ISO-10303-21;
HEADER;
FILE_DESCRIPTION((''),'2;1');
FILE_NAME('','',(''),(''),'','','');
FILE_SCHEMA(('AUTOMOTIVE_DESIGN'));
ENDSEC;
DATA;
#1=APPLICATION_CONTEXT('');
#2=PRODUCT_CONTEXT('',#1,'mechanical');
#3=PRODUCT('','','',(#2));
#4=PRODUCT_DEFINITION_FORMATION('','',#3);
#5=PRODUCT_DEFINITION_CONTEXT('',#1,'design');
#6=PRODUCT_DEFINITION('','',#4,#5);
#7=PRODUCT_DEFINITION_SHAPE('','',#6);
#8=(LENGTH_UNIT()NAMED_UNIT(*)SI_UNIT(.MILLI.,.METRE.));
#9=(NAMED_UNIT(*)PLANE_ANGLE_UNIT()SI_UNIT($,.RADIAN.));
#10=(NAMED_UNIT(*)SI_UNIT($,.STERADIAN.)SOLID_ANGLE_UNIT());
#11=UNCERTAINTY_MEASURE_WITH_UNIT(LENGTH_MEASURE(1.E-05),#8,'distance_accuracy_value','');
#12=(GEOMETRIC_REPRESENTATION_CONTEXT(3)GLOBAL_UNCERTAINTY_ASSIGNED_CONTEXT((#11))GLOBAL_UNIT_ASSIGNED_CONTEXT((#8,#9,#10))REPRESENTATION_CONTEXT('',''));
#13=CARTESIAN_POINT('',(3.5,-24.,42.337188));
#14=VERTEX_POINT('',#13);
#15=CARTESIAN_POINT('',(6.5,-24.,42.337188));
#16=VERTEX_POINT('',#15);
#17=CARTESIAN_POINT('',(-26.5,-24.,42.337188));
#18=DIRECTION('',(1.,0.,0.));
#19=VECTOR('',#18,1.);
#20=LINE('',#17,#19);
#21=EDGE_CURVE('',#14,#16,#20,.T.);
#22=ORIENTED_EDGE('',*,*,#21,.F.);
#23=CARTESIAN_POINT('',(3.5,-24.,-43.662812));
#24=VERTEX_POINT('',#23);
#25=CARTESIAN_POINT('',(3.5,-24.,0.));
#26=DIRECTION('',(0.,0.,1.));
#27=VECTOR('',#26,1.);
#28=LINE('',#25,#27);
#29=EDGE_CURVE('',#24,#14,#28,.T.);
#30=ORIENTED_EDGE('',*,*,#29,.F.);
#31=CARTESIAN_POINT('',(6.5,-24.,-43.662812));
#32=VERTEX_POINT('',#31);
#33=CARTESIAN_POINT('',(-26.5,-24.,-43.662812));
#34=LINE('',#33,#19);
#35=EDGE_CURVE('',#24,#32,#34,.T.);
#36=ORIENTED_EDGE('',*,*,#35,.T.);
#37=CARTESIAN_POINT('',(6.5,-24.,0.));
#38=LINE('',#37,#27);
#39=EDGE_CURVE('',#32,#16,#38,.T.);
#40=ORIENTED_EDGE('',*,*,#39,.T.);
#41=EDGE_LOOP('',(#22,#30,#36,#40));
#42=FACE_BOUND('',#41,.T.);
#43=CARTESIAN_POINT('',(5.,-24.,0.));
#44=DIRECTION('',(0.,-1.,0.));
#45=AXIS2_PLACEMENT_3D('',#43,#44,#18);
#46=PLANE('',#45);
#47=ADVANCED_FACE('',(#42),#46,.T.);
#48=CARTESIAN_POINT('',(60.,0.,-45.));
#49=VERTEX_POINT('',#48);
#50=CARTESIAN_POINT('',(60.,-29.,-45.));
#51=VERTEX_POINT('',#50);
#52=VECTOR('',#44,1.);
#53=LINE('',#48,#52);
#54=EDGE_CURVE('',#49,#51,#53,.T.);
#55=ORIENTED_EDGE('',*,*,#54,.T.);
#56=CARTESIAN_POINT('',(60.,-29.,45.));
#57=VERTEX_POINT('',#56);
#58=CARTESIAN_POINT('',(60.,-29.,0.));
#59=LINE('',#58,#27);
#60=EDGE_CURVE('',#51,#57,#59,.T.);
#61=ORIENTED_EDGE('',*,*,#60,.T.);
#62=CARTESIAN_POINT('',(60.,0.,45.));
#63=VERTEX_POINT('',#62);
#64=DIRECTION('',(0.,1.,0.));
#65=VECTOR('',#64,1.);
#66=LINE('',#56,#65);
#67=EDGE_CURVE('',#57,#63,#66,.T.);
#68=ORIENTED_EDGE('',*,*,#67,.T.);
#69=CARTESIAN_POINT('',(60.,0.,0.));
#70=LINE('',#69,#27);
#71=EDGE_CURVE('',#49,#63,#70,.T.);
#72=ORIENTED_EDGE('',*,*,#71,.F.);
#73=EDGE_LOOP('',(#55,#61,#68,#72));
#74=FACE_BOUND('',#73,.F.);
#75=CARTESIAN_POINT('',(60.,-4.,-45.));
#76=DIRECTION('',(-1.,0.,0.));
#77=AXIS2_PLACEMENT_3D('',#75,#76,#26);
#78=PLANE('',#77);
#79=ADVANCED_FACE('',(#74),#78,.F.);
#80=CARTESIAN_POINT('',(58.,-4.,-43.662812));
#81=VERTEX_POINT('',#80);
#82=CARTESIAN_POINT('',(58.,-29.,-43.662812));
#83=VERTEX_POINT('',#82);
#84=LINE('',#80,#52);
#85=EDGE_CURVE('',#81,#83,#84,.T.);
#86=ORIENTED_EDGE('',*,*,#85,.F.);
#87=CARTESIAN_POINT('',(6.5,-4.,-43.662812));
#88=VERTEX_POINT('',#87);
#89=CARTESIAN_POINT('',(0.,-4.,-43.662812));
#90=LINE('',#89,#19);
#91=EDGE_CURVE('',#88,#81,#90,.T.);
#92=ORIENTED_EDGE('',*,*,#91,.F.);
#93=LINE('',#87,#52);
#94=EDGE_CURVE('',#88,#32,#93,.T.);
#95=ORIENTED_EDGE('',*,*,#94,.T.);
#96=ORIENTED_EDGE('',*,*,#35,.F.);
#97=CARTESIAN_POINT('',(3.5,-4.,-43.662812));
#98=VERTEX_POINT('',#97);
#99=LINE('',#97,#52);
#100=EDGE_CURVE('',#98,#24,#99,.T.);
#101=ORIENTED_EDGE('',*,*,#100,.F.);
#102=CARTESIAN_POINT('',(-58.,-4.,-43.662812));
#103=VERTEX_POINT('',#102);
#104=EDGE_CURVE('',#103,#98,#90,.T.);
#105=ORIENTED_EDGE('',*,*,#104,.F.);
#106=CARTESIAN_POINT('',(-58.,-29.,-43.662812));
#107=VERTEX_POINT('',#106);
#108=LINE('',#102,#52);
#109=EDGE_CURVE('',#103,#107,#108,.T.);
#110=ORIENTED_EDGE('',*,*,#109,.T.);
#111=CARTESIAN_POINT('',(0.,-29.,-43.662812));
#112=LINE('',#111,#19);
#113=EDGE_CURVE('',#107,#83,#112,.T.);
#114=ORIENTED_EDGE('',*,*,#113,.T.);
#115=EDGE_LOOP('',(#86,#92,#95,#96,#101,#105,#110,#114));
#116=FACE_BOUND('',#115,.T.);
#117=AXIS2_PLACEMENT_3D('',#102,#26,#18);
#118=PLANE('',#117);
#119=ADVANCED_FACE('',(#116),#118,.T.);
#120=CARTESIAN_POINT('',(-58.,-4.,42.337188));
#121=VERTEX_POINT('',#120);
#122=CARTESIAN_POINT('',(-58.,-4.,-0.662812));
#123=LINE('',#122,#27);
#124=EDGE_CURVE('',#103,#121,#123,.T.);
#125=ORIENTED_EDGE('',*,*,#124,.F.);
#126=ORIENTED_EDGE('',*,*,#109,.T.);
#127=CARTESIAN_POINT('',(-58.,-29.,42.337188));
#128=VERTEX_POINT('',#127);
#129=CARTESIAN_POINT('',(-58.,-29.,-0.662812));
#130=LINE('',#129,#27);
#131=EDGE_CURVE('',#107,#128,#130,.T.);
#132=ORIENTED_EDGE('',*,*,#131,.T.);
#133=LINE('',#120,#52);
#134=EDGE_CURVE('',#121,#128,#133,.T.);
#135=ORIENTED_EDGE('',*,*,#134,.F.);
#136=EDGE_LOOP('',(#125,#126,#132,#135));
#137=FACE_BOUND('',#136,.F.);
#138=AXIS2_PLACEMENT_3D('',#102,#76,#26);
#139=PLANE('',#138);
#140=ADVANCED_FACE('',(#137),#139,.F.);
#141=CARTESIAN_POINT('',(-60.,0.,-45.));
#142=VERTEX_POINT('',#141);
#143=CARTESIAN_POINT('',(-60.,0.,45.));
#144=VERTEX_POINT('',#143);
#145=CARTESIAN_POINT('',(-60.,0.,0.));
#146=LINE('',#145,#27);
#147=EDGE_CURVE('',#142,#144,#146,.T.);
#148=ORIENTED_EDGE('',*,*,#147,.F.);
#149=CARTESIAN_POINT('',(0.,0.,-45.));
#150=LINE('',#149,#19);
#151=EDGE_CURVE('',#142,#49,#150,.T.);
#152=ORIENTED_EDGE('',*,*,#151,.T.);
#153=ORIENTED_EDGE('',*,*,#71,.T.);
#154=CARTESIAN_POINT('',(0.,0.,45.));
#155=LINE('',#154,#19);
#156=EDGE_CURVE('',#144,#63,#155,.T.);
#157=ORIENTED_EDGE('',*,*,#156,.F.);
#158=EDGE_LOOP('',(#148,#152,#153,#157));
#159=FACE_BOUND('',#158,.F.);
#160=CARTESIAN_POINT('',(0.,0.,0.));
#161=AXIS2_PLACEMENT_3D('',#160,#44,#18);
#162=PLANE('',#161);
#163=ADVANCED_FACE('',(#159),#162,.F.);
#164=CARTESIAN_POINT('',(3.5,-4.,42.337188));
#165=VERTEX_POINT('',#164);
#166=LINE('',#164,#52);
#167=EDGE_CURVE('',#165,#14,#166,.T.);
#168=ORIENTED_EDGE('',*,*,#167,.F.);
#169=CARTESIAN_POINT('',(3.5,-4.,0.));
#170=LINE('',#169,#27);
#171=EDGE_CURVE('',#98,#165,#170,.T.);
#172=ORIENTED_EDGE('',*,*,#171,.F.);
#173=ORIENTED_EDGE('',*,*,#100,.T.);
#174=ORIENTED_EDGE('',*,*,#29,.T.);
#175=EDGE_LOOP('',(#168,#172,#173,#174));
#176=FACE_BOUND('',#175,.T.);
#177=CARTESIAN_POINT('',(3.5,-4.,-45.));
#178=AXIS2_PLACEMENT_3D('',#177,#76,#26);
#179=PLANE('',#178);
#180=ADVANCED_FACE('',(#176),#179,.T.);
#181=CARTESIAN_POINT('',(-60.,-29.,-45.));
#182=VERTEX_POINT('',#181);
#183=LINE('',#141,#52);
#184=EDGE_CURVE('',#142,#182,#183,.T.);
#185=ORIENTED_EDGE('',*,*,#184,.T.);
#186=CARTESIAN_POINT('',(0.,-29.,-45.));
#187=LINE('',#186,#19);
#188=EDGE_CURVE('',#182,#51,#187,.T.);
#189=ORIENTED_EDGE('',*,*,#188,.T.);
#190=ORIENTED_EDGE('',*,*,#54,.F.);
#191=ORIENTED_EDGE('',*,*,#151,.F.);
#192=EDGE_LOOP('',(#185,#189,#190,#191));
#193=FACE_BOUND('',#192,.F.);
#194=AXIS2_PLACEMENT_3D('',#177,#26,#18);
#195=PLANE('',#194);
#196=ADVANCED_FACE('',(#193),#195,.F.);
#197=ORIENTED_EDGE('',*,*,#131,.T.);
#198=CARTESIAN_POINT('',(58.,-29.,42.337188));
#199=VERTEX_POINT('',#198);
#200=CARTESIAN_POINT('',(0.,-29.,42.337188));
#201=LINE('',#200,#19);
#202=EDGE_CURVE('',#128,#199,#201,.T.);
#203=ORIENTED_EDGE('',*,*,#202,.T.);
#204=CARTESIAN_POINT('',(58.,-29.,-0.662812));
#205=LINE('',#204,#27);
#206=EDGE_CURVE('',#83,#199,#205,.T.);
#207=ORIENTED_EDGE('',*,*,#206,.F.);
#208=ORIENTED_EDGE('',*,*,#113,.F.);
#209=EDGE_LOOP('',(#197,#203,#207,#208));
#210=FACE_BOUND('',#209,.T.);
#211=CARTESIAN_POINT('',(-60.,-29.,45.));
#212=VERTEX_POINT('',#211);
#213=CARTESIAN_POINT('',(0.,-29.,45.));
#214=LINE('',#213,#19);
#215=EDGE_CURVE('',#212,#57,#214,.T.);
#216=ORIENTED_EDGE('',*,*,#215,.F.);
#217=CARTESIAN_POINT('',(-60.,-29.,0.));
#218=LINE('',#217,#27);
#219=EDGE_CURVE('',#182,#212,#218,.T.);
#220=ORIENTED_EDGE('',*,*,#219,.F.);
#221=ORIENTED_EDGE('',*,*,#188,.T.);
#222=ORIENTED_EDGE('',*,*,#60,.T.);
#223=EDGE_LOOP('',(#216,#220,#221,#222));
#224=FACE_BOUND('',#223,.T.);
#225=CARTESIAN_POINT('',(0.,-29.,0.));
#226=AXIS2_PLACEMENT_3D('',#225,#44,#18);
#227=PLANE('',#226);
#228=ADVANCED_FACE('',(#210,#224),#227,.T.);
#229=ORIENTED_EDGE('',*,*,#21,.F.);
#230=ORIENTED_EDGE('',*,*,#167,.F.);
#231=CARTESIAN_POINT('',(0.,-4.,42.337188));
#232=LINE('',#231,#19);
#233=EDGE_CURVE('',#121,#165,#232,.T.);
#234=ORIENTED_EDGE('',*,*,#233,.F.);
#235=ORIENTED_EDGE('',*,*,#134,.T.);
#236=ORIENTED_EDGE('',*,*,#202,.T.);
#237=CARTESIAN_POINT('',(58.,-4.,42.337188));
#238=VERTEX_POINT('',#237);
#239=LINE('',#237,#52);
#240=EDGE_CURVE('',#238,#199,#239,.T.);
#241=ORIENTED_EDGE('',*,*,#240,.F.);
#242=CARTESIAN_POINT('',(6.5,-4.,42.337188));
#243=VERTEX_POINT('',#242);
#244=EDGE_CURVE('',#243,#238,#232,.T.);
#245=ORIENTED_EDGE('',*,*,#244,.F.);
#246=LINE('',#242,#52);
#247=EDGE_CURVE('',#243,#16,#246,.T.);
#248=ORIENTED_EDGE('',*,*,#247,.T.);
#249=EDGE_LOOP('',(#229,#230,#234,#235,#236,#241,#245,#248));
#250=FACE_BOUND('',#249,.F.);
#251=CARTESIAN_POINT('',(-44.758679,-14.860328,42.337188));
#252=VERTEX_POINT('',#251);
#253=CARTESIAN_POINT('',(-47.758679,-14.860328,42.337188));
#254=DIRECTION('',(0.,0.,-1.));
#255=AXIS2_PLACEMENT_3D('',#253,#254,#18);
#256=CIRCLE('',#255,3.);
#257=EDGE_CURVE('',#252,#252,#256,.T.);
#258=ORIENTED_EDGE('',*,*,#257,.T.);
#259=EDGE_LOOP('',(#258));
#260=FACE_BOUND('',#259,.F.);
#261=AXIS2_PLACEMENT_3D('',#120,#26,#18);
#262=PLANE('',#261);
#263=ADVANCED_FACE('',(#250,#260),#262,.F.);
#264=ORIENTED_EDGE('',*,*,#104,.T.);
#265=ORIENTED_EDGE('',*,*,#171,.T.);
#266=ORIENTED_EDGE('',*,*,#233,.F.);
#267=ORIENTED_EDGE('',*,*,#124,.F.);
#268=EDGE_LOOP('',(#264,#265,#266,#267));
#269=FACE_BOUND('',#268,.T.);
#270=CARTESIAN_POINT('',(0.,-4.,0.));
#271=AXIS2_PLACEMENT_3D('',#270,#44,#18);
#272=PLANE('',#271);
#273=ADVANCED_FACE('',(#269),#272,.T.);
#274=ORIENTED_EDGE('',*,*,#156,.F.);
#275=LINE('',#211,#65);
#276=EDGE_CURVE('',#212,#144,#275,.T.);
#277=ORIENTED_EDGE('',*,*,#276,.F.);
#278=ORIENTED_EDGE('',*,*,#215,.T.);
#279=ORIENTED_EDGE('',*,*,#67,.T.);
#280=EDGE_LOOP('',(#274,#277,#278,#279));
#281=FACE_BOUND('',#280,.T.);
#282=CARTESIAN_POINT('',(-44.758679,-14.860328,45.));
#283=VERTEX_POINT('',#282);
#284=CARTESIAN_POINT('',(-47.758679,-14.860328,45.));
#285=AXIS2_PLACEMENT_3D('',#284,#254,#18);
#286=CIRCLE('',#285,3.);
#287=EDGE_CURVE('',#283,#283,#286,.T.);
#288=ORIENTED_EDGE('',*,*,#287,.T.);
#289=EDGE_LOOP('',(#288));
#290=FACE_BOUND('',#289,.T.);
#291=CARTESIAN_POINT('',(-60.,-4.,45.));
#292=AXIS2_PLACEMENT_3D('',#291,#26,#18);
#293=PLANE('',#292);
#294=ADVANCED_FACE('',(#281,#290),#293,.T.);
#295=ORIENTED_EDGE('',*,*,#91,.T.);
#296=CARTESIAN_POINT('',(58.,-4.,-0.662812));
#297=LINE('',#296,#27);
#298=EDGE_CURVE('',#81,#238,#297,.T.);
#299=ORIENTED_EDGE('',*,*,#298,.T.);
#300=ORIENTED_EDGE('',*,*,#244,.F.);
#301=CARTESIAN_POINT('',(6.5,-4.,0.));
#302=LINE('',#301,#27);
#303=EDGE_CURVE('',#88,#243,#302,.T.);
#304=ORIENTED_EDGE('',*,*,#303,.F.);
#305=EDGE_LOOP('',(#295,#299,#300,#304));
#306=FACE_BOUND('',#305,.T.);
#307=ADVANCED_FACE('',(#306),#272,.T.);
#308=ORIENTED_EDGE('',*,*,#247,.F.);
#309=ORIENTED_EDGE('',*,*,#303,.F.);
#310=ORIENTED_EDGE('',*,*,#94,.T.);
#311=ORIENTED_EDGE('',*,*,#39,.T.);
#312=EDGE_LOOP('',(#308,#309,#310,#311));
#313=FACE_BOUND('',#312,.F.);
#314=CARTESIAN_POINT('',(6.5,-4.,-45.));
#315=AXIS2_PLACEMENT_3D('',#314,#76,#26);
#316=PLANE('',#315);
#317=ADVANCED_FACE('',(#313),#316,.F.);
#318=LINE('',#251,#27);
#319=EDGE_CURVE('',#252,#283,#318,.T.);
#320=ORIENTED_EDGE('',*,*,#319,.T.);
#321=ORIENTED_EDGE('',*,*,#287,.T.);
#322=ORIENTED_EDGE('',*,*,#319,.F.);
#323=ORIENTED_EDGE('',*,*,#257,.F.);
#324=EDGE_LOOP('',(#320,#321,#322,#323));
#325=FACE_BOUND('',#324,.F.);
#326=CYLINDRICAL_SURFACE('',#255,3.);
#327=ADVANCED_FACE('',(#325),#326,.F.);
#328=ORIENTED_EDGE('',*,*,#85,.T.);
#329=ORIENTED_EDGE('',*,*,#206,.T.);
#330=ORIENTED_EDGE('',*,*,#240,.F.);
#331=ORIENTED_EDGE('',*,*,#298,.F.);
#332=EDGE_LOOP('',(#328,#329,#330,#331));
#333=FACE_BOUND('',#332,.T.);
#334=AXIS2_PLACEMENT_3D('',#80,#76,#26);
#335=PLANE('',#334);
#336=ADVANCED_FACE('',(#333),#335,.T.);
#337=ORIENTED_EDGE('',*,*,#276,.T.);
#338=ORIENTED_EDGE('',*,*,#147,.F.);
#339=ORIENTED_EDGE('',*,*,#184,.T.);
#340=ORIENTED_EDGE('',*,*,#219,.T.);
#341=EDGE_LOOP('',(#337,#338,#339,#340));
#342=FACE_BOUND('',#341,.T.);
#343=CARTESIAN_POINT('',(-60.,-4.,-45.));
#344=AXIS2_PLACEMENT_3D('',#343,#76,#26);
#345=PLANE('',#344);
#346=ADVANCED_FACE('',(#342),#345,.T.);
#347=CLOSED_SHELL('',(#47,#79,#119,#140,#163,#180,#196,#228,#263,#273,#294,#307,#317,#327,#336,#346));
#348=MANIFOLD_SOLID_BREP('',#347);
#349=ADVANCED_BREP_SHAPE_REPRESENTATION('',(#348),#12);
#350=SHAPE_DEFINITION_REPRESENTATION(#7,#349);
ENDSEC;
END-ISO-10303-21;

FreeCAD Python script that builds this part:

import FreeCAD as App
import Part
import Sketcher

V = App.Vector
Q = App.Units.Quantity

doc = App.newDocument("Part")
body = doc.addObject("PartDesign::Body", "Body")

# Sketch on XZ plane
sketch1 = body.newObject("Sketcher::SketchObject", "Sketch")
sketch1.AttachmentSupport = (doc.getObject("XZ_Plane"), [""])
sketch1.MapMode = "FlatFace"
sketch1.addGeometry([
    Part.LineSegment(V(-60, 45, 0), V(-60, -45, 0)),
    Part.LineSegment(V(-60, -45, 0), V(60, -45, 0)),
    Part.LineSegment(V(60, -45, 0), V(60, 45, 0)),
    Part.LineSegment(V(60, 45, 0), V(-60, 45, 0)),
], False)
sketch1.addConstraint([
    Sketcher.Constraint("Coincident", 0, 2, 1, 1),
    Sketcher.Constraint("Coincident", 1, 2, 2, 1),
    Sketcher.Constraint("Coincident", 2, 2, 3, 1),
    Sketcher.Constraint("Coincident", 3, 2, 0, 1),
    Sketcher.Constraint("Vertical", 0),
    Sketcher.Constraint("Horizontal", 1),
    Sketcher.Constraint("Vertical", 2),
    Sketcher.Constraint("Horizontal", 3),
    Sketcher.Constraint("Symmetric", 0, 2, 2, 2, -1, 1),
    Sketcher.Constraint("DistanceX", 1, 1, 1, 2, Q("120 mm")),
    Sketcher.Constraint("DistanceY", 0, 2, 0, 1, Q("90 mm")),
])
pad1 = body.newObject("PartDesign::Pad", "Pad")
pad1.Profile = sketch1
pad1.Length = 4

# Sketch on XZ plane
sketch2 = body.newObject("Sketcher::SketchObject", "Sketch001")
sketch2.AttachmentSupport = (doc.getObject("XZ_Plane"), [""])
sketch2.MapMode = "FlatFace"
sketch2.AttachmentOffset = App.Placement(V(0, 0, 4), App.Rotation())
sketch2.addGeometry([
    Part.LineSegment(V(-60, 45, 0), V(-60, -45, 0)),  # 0
    Part.LineSegment(V(-60, -45, 0), V(60, -45, 0)),  # 1
    Part.LineSegment(V(60, -45, 0), V(60, 45, 0)),  # 2
    Part.LineSegment(V(60, 45, 0), V(-60, 45, 0)),  # 3
    Part.LineSegment(V(58, -44, 0), V(-58, -44, 0)),  # 4
    Part.LineSegment(V(-58, -44, 0), V(-58, 42, 0)),  # 5
    Part.LineSegment(V(-58, 42, 0), V(58, 42, 0)),  # 6
    Part.LineSegment(V(58, 42, 0), V(58, -44, 0)),  # 7
], False)
sketch2.addConstraint([
    Sketcher.Constraint("Coincident", 0, 2, 1, 1),
    Sketcher.Constraint("Coincident", 1, 2, 2, 1),
    Sketcher.Constraint("Coincident", 2, 2, 3, 1),
    Sketcher.Constraint("Coincident", 3, 2, 0, 1),
    Sketcher.Constraint("Coincident", 4, 2, 5, 1),
    Sketcher.Constraint("Coincident", 5, 2, 6, 1),
    Sketcher.Constraint("Coincident", 6, 2, 7, 1),
    Sketcher.Constraint("Coincident", 7, 2, 4, 1),
    Sketcher.Constraint("Vertical", 0),
    Sketcher.Constraint("Horizontal", 1),
    Sketcher.Constraint("Vertical", 2),
    Sketcher.Constraint("Horizontal", 3),
    Sketcher.Constraint("Horizontal", 4),
    Sketcher.Constraint("Vertical", 5),
    Sketcher.Constraint("Horizontal", 6),
    Sketcher.Constraint("Vertical", 7),
    Sketcher.Constraint("Symmetric", 0, 2, 2, 2, -1, 1),
    Sketcher.Constraint("DistanceX", 1, 1, 1, 2, Q("120 mm")),
    Sketcher.Constraint("DistanceX", 4, 2, 4, 1, Q("116 mm")),
    Sketcher.Constraint("DistanceY", 0, 2, 0, 1, Q("90 mm")),
    Sketcher.Constraint("DistanceY", 5, 1, 5, 2, Q("86 mm")),
    Sketcher.Constraint("DistanceX", 4, 2, -1, 1, Q("58 mm")),
    Sketcher.Constraint("DistanceY", 4, 2, -1, 1, Q("43.662812 mm")),
])
pad2 = body.newObject("PartDesign::Pad", "Pad001")
pad2.Profile = sketch2
pad2.Length = 25

# Sketch on XZ plane
sketch3 = body.newObject("Sketcher::SketchObject", "Sketch002")
sketch3.AttachmentSupport = (doc.getObject("XZ_Plane"), [""])
sketch3.MapMode = "FlatFace"
sketch3.AttachmentOffset = App.Placement(V(0, 0, 4), App.Rotation())
sketch3.addGeometry([
    Part.LineSegment(V(3.5, 45, 0), V(3.5, -45, 0)),
    Part.LineSegment(V(3.5, -45, 0), V(6.5, -45, 0)),
    Part.LineSegment(V(6.5, -45, 0), V(6.5, 45, 0)),
    Part.LineSegment(V(6.5, 45, 0), V(3.5, 45, 0)),
], False)
sketch3.addConstraint([
    Sketcher.Constraint("Coincident", 0, 2, 1, 1),
    Sketcher.Constraint("Coincident", 1, 2, 2, 1),
    Sketcher.Constraint("Coincident", 2, 2, 3, 1),
    Sketcher.Constraint("Coincident", 3, 2, 0, 1),
    Sketcher.Constraint("Vertical", 0),
    Sketcher.Constraint("Horizontal", 1),
    Sketcher.Constraint("Vertical", 2),
    Sketcher.Constraint("Horizontal", 3),
    Sketcher.Constraint("DistanceX", 1, 1, 1, 2, Q("3 mm")),
    Sketcher.Constraint("DistanceY", 0, 2, 0, 1, Q("90 mm")),
    Sketcher.Constraint("DistanceY", 0, 2, -1, 1, Q("45 mm")),
    Sketcher.Constraint("DistanceX", -1, 1, 0, 2, Q("3.5 mm")),
])
pad3 = body.newObject("PartDesign::Pad", "Pad002")
pad3.Profile = sketch3
pad3.Length = 20

# Sketch on XY plane
sketch4 = body.newObject("Sketcher::SketchObject", "Sketch003")
sketch4.AttachmentSupport = (doc.getObject("XY_Plane"), [""])
sketch4.MapMode = "FlatFace"
sketch4.AttachmentOffset = App.Placement(V(0, 0, 42.337188), App.Rotation())
sketch4.addGeometry(Part.Circle(V(-47.8, -14.9, 0), V(0, 0, 1), 3), False)
sketch4.addConstraint([
    Sketcher.Constraint("Diameter", 0, Q("6 mm")),
    Sketcher.Constraint("DistanceX", 0, 3, -1, 1, Q("47.758679 mm")),
    Sketcher.Constraint("DistanceY", 0, 3, -1, 1, Q("14.860328 mm")),
])
pocket1 = body.newObject("PartDesign::Pocket", "Pocket")
pocket1.Profile = sketch4
pocket1.Length = 25
pocket1.Reversed = True

doc.recompute()
